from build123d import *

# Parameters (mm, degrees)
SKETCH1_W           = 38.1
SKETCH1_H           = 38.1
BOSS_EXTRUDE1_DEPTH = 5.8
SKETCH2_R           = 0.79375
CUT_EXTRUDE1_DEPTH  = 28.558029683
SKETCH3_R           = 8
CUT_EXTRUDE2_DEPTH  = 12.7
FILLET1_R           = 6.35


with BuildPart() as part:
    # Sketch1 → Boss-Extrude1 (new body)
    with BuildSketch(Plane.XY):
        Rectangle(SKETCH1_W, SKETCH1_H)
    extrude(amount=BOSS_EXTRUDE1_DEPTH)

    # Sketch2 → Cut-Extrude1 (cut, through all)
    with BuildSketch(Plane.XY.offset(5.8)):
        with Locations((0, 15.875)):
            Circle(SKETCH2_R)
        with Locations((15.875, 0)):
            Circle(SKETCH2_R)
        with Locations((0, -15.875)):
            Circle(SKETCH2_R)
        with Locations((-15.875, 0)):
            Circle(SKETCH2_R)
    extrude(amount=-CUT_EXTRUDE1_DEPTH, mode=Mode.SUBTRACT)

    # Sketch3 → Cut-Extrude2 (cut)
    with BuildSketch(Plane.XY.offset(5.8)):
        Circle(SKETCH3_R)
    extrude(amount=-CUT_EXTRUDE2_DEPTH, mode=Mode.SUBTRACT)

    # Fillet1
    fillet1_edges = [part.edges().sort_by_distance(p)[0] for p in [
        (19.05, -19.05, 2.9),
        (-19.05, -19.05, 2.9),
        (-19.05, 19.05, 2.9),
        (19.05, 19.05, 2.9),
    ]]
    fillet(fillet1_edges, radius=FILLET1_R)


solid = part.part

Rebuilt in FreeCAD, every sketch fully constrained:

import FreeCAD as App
import Part
import Sketcher

V = App.Vector
Q = App.Units.Quantity


def edges_at(feature, points):
    """Names of the edges that pass closest to the given points."""
    edges = feature.Shape.Edges
    near = lambda p: min(range(len(edges)), key=lambda i: edges[i].distToShape(Part.Vertex(*p))[0])
    return sorted({f"Edge{near(p) + 1}" for p in points})


def add_polygon(sketch, points):
    """Adds a closed chain of lines whose ends are joined by coincident constraints."""
    first, n = sketch.GeometryCount, len(points)
    for a, b in zip(points, points[1:] + points[:1]):
        sketch.addGeometry(Part.LineSegment(App.Vector(*a, 0), App.Vector(*b, 0)), False)
    for i in range(n):
        sketch.addConstraint(Sketcher.Constraint("Coincident", first + i, 2, first + (i + 1) % n, 1))

doc = App.newDocument("Part")
body = doc.addObject("PartDesign::Body", "Body")

sketch1 = body.newObject("Sketcher::SketchObject", "Sketch")
sketch1.AttachmentSupport = (doc.getObject("XY_Plane"), [""])
sketch1.MapMode = "FlatFace"
add_polygon(sketch1, [(-19, 19), (-19, -19), (19, -19), (19, 19)])
sketch1.addConstraint([
    Sketcher.Constraint("Vertical", 0),
    Sketcher.Constraint("Horizontal", 1),
    Sketcher.Constraint("Vertical", 2),
    Sketcher.Constraint("Horizontal", 3),
    Sketcher.Constraint("Symmetric", 0, 2, 2, 2, -1, 1),
    Sketcher.Constraint("Equal", 3, 0),
    Sketcher.Constraint("DistanceX", 1, 1, 1, 2, Q("1.5 in")),
])
pad1 = body.newObject("PartDesign::Pad", "Pad")
pad1.Profile = sketch1
pad1.Length = 5.8

sketch2 = body.newObject("Sketcher::SketchObject", "Sketch001")
sketch2.AttachmentSupport = (doc.getObject("XY_Plane"), [""])
sketch2.MapMode = "FlatFace"
sketch2.AttachmentOffset = App.Placement(V(0, 0, 5.8), App.Rotation())
sketch2.addGeometry([
    Part.Circle(V(0, 15.9, 0), V(0, 0, 1), 0.8),
    Part.Circle(V(15.9, 0, 0), V(0, 0, 1), 0.8),
    Part.Circle(V(0, -15.9, 0), V(0, 0, 1), 0.8),
    Part.Circle(V(-15.9, 0, 0), V(0, 0, 1), 0.8),
], False)
sketch2.addConstraint([
    Sketcher.Constraint("Equal", 0, 1),
    Sketcher.Constraint("Equal", 1, 2),
    Sketcher.Constraint("Equal", 2, 3),
    Sketcher.Constraint("Symmetric", 0, 3, 2, 3, -1, 1),
    Sketcher.Constraint("Symmetric", 1, 3, 3, 3, -1, 1),
    Sketcher.Constraint("PointOnObject", 0, 3, -2),
    Sketcher.Constraint("PointOnObject", 1, 3, -1),
    Sketcher.Constraint("Diameter", 0, Q("0.0625 in")),
    Sketcher.Constraint("DistanceY", 2, 3, 0, 3, Q("1.25 in")),
    Sketcher.Constraint("DistanceX", 3, 3, 1, 3, Q("1.25 in")),
])
pocket1 = body.newObject("PartDesign::Pocket", "Pocket")
pocket1.Profile = sketch2
pocket1.Type = "ThroughAll"

sketch3 = body.newObject("Sketcher::SketchObject", "Sketch002")
sketch3.AttachmentSupport = (doc.getObject("XY_Plane"), [""])
sketch3.MapMode = "FlatFace"
sketch3.AttachmentOffset = App.Placement(V(0, 0, 5.8), App.Rotation())
sketch3.addGeometry(Part.Circle(V(0, 0, 0), V(0, 0, 1), 8), False)
sketch3.addConstraint([
    Sketcher.Constraint("Coincident", 0, 3, -1, 1),
    Sketcher.Constraint("Diameter", 0, Q("16 mm")),
])
pocket2 = body.newObject("PartDesign::Pocket", "Pocket001")
pocket2.Profile = sketch3
pocket2.Length = Q("0.5 in")
doc.recompute()

fillet = body.newObject("PartDesign::Fillet", "Fillet")
fillet.Base = (pocket2, edges_at(pocket2, [
    (19.05, -19.05, 2.9),
    (-19.05, -19.05, 2.9),
    (-19.05, 19.05, 2.9),
    (19.05, 19.05, 2.9),
]))
fillet.Radius = Q("0.25 in")

doc.recompute()
